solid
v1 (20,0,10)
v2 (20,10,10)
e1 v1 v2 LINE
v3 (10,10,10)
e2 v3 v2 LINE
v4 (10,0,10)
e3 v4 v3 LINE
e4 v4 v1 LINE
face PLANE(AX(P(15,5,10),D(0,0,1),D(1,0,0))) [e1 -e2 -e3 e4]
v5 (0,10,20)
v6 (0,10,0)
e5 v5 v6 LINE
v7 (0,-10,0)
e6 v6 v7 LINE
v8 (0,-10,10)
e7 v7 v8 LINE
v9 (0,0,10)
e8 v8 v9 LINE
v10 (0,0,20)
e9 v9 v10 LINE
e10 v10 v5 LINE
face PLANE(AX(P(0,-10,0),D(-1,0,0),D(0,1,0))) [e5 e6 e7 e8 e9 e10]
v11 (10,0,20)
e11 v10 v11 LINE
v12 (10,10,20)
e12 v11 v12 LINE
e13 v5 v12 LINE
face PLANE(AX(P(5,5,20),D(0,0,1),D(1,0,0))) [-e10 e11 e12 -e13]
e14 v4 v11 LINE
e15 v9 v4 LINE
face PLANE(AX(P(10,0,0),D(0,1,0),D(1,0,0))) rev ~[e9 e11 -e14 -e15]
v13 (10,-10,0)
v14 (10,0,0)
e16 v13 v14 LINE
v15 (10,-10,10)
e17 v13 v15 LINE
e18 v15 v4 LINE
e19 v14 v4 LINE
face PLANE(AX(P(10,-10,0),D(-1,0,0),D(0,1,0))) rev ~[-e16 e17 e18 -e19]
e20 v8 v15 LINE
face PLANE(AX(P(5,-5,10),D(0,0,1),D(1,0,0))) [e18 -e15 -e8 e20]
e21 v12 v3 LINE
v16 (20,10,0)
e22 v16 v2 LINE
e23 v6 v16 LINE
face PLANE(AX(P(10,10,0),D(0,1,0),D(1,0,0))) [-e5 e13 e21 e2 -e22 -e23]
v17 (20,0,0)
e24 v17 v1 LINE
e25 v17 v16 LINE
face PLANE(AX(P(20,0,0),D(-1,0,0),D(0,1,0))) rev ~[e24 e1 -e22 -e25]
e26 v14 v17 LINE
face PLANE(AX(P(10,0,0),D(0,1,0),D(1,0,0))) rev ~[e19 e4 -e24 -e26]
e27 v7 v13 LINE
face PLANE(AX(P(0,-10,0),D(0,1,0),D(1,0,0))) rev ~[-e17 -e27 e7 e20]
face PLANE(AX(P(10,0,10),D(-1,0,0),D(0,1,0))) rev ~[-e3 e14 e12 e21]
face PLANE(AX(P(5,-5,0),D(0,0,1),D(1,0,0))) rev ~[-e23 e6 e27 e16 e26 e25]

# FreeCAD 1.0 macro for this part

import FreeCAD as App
import Part
import Sketcher

doc = App.newDocument("Part")
params = doc.addObject("Spreadsheet::Sheet", "Params")
for row, (alias, value) in enumerate([
    ("sketch1_width", "10 mm"),
    ("pad1_length", "10 mm"),
    ("sketch2_width", "10 mm"),
    ("pad2_length", "10 mm"),
    ("sketch3_width", "10 mm"),
    ("pad3_length", "10 mm"),
    ("sketch4_width", "10 mm"),
    ("pad4_length", "10 mm"),
], start=1):
    params.set(f"A{row}", alias)
    params.set(f"B{row}", "=" + value)
    params.setAlias(f"B{row}", alias)

body = doc.addObject("PartDesign::Body", "Body")

# Sketch on XY plane
sketch1 = body.newObject("Sketcher::SketchObject", "Sketch")
sketch1.AttachmentSupport = (doc.getObject("XY_Plane"), [""])
sketch1.MapMode = "FlatFace"
sketch1.AttachmentOffset = App.Placement(App.Vector(0, 0, 10), App.Rotation())
sketch1.addGeometry(Part.LineSegment(App.Vector(0, 10, 0), App.Vector(0, 0, 0)), False)
sketch1.addGeometry(Part.LineSegment(App.Vector(0, 0, 0), App.Vector(10, 0, 0)), False)
sketch1.addGeometry(Part.LineSegment(App.Vector(10, 0, 0), App.Vector(10, 10, 0)), False)
sketch1.addGeometry(Part.LineSegment(App.Vector(10, 10, 0), App.Vector(0, 10, 0)), False)
sketch1.addConstraint(Sketcher.Constraint("Coincident", 0, 2, 1, 1))
sketch1.addConstraint(Sketcher.Constraint("Coincident", 1, 2, 2, 1))
sketch1.addConstraint(Sketcher.Constraint("Coincident", 2, 2, 3, 1))
sketch1.addConstraint(Sketcher.Constraint("Coincident", 3, 2, 0, 1))
sketch1.addConstraint(Sketcher.Constraint("Vertical", 0))
sketch1.addConstraint(Sketcher.Constraint("Horizontal", 1))
sketch1.addConstraint(Sketcher.Constraint("Vertical", 2))
sketch1.addConstraint(Sketcher.Constraint("Horizontal", 3))
sketch1.addConstraint(Sketcher.Constraint("Coincident", 0, 2, -1, 1))
sketch1.addConstraint(Sketcher.Constraint("Equal", 3, 0))
sketch1.addConstraint(Sketcher.Constraint("DistanceX", 1, 1, 1, 2, 10.0))
sketch1.setExpression("Constraints[10]", "Params.sketch1_width")
pad1 = body.newObject("PartDesign::Pad", "Pad")
pad1.Profile = sketch1
pad1.setExpression("Length", "Params.pad1_length")
body2 = doc.addObject("PartDesign::Body", "Body001")

# Sketch on XY plane
sketch2 = body2.newObject("Sketcher::SketchObject", "Sketch001")
sketch2.AttachmentSupport = (doc.getObject("XY_Plane001"), [""])
sketch2.MapMode = "FlatFace"
sketch2.addGeometry(Part.LineSegment(App.Vector(10, 10, 0), App.Vector(10, 0, 0)), False)
sketch2.addGeometry(Part.LineSegment(App.Vector(10, 0, 0), App.Vector(20, 0, 0)), False)
sketch2.addGeometry(Part.LineSegment(App.Vector(20, 0, 0), App.Vector(20, 10, 0)), False)
sketch2.addGeometry(Part.LineSegment(App.Vector(20, 10, 0), App.Vector(10, 10, 0)), False)
sketch2.addConstraint(Sketcher.Constraint("Coincident", 0, 2, 1, 1))
sketch2.addConstraint(Sketcher.Constraint("Coincident", 1, 2, 2, 1))
sketch2.addConstraint(Sketcher.Constraint("Coincident", 2, 2, 3, 1))
sketch2.addConstraint(Sketcher.Constraint("Coincident", 3, 2, 0, 1))
sketch2.addConstraint(Sketcher.Constraint("Vertical", 0))
sketch2.addConstraint(Sketcher.Constraint("Horizontal", 1))
sketch2.addConstraint(Sketcher.Constraint("Vertical", 2))
sketch2.addConstraint(Sketcher.Constraint("Horizontal", 3))
sketch2.addConstraint(Sketcher.Constraint("PointOnObject", 0, 2, -1))
sketch2.addConstraint(Sketcher.Constraint("Equal", 3, 0))
sketch2.addConstraint(Sketcher.Constraint("DistanceX", 1, 1, 1, 2, 10.0))
sketch2.addConstraint(Sketcher.Constraint("DistanceX", -1, 1, 0, 2, 10.0))
sketch2.setExpression("Constraints[10]", "Params.sketch2_width")
pad2 = body2.newObject("PartDesign::Pad", "Pad001")
pad2.Profile = sketch2
pad2.setExpression("Length", "Params.pad2_length")
body3 = doc.addObject("PartDesign::Body", "Body002")

# Sketch on XY plane
sketch3 = body3.newObject("Sketcher::SketchObject", "Sketch002")
sketch3.AttachmentSupport = (doc.getObject("XY_Plane002"), [""])
sketch3.MapMode = "FlatFace"
sketch3.addGeometry(Part.LineSegment(App.Vector(0, 0, 0), App.Vector(0, -10, 0)), False)
sketch3.addGeometry(Part.LineSegment(App.Vector(0, -10, 0), App.Vector(10, -10, 0)), False)
sketch3.addGeometry(Part.LineSegment(App.Vector(10, -10, 0), App.Vector(10, 0, 0)), False)
sketch3.addGeometry(Part.LineSegment(App.Vector(10, 0, 0), App.Vector(0, 0, 0)), False)
sketch3.addConstraint(Sketcher.Constraint("Coincident", 0, 2, 1, 1))
sketch3.addConstraint(Sketcher.Constraint("Coincident", 1, 2, 2, 1))
sketch3.addConstraint(Sketcher.Constraint("Coincident", 2, 2, 3, 1))
sketch3.addConstraint(Sketcher.Constraint("Coincident", 3, 2, 0, 1))
sketch3.addConstraint(Sketcher.Constraint("Vertical", 0))
sketch3.addConstraint(Sketcher.Constraint("Horizontal", 1))
sketch3.addConstraint(Sketcher.Constraint("Vertical", 2))
sketch3.addConstraint(Sketcher.Constraint("Horizontal", 3))
sketch3.addConstraint(Sketcher.Constraint("Coincident", 3, 2, -1, 1))
sketch3.addConstraint(Sketcher.Constraint("Equal", 3, 0))
sketch3.addConstraint(Sketcher.Constraint("DistanceX", 1, 1, 1, 2, 10.0))
sketch3.setExpression("Constraints[10]", "Params.sketch3_width")
pad3 = body3.newObject("PartDesign::Pad", "Pad002")
pad3.Profile = sketch3
pad3.setExpression("Length", "Params.pad3_length")
body4 = doc.addObject("PartDesign::Body", "Body003")

# Sketch on XY plane
sketch4 = body4.newObject("Sketcher::SketchObject", "Sketch003")
sketch4.AttachmentSupport = (doc.getObject("XY_Plane003"), [""])
sketch4.MapMode = "FlatFace"
sketch4.addGeometry(Part.LineSegment(App.Vector(0, 10, 0), App.Vector(0, 0, 0)), False)
sketch4.addGeometry(Part.LineSegment(App.Vector(0, 0, 0), App.Vector(10, 0, 0)), False)
sketch4.addGeometry(Part.LineSegment(App.Vector(10, 0, 0), App.Vector(10, 10, 0)), False)
sketch4.addGeometry(Part.LineSegment(App.Vector(10, 10, 0), App.Vector(0, 10, 0)), False)
sketch4.addConstraint(Sketcher.Constraint("Coincident", 0, 2, 1, 1))
sketch4.addConstraint(Sketcher.Constraint("Coincident", 1, 2, 2, 1))
sketch4.addConstraint(Sketcher.Constraint("Coincident", 2, 2, 3, 1))
sketch4.addConstraint(Sketcher.Constraint("Coincident", 3, 2, 0, 1))
sketch4.addConstraint(Sketcher.Constraint("Vertical", 0))
sketch4.addConstraint(Sketcher.Constraint("Horizontal", 1))
sketch4.addConstraint(Sketcher.Constraint("Vertical", 2))
sketch4.addConstraint(Sketcher.Constraint("Horizontal", 3))
sketch4.addConstraint(Sketcher.Constraint("Coincident", 0, 2, -1, 1))
sketch4.addConstraint(Sketcher.Constraint("Equal", 3, 0))
sketch4.addConstraint(Sketcher.Constraint("DistanceX", 1, 1, 1, 2, 10.0))
sketch4.setExpression("Constraints[10]", "Params.sketch4_width")
pad4 = body4.newObject("PartDesign::Pad", "Pad003")
pad4.Profile = sketch4
pad4.setExpression("Length", "Params.pad4_length")
doc.recompute()

boolean = body4.newObject("PartDesign::Boolean", "Boolean")
boolean.Type = "Fuse"
boolean.addObjects([body])
doc.recompute()

boolean2 = body4.newObject("PartDesign::Boolean", "Boolean001")
boolean2.Type = "Fuse"
boolean2.addObjects([body2])
doc.recompute()

boolean3 = body4.newObject("PartDesign::Boolean", "Boolean002")
boolean3.Type = "Fuse"
boolean3.addObjects([body3])

doc.recompute()
